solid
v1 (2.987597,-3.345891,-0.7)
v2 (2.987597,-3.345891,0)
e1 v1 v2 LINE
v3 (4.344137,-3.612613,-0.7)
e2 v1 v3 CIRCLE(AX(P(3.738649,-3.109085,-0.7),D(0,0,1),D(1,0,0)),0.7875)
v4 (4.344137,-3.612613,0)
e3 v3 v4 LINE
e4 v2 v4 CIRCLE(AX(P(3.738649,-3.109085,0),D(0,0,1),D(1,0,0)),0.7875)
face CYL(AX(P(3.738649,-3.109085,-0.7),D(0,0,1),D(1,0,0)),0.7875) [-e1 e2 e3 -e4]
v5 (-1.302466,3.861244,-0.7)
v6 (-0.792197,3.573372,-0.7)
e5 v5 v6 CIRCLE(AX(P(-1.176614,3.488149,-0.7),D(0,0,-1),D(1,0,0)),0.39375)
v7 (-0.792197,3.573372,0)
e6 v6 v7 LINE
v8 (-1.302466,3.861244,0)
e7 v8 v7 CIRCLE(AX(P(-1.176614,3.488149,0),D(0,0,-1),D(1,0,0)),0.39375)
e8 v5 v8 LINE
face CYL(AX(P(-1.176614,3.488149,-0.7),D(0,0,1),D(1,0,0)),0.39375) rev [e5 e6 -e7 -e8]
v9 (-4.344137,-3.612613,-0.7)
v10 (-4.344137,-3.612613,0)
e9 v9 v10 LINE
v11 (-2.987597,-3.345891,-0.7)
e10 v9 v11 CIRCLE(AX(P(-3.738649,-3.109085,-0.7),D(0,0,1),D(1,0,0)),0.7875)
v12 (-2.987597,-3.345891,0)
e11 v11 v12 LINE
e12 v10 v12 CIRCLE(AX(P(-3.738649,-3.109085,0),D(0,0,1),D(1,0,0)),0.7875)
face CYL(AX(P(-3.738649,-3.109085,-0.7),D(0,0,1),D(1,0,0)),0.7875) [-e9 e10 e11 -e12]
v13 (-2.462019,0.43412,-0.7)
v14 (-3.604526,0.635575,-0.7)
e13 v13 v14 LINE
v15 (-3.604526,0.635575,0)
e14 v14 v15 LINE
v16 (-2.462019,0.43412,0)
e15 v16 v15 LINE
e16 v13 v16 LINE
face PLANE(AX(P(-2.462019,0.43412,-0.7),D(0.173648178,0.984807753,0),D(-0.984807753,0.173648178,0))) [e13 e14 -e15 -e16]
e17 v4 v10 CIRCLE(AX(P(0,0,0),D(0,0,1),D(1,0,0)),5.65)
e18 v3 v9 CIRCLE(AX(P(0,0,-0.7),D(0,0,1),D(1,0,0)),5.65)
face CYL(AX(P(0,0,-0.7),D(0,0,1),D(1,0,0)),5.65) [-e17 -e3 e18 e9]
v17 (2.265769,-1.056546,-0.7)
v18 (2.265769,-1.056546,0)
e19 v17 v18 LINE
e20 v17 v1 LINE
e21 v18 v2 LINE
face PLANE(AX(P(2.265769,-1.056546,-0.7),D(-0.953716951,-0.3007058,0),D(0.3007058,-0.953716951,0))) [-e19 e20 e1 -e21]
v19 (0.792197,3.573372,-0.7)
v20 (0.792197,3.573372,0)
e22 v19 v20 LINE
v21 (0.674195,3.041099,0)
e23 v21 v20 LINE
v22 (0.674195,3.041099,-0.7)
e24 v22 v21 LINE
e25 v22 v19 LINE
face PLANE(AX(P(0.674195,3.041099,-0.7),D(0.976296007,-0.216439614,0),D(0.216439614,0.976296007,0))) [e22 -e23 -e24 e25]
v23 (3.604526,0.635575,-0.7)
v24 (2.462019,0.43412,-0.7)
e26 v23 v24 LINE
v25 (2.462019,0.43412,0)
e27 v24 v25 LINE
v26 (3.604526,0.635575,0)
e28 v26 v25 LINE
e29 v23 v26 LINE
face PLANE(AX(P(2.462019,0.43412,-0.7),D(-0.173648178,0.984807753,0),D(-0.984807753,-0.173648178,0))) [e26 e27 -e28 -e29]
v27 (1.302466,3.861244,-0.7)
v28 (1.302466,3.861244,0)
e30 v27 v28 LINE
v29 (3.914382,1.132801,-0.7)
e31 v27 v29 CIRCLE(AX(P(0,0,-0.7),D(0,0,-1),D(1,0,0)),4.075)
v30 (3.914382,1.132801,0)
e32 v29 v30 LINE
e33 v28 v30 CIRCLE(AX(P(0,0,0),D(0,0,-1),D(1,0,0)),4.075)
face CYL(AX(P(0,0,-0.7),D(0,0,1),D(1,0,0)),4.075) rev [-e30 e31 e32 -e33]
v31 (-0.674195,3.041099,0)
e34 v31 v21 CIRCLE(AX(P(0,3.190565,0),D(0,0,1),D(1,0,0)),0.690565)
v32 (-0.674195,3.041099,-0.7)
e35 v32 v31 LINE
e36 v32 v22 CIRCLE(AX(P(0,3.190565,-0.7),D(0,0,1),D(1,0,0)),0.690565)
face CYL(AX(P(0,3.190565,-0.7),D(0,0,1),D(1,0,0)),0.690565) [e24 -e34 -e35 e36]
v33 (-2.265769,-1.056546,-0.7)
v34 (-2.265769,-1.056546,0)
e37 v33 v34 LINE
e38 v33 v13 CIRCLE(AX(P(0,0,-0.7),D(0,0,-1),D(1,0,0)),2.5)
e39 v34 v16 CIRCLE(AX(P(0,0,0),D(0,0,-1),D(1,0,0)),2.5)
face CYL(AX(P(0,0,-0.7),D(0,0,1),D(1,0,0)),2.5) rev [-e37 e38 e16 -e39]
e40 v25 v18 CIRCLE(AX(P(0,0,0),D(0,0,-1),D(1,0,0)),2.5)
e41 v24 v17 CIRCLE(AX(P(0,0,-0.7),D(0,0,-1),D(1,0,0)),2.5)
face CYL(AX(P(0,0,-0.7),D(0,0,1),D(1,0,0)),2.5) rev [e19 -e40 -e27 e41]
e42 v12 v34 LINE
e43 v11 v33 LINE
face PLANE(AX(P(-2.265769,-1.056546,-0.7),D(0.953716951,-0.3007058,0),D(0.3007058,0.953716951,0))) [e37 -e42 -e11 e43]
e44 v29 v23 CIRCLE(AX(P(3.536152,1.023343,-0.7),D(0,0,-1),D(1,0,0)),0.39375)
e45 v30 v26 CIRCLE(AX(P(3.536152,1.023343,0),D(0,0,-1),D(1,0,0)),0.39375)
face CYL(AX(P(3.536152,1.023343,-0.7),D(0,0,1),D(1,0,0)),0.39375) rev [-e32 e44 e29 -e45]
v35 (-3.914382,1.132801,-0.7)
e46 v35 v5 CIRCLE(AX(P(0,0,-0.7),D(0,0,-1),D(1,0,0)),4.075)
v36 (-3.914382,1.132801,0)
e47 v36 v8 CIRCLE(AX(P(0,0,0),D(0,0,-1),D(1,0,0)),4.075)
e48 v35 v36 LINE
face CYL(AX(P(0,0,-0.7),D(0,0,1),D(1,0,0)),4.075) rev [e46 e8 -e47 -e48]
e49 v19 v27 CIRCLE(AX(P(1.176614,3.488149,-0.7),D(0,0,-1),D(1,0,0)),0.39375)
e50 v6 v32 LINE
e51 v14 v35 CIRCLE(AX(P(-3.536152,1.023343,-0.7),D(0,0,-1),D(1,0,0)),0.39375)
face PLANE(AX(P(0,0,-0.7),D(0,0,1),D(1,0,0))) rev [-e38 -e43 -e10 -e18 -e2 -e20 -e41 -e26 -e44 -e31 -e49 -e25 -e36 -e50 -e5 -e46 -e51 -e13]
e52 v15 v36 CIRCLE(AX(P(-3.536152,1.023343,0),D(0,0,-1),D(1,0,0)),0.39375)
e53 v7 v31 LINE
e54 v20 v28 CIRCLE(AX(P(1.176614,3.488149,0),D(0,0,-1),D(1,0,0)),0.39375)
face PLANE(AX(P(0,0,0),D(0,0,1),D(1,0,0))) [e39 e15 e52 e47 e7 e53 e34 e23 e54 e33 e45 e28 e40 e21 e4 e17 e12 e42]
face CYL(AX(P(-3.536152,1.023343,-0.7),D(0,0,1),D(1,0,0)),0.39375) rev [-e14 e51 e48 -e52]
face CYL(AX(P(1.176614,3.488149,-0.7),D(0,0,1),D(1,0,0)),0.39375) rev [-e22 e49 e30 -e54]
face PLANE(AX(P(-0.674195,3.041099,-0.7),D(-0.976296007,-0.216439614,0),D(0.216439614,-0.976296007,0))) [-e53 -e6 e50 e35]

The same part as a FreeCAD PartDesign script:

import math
import FreeCAD as App
import Part
import Sketcher
from FreeCAD import Vector
Q = App.Units.Quantity

doc = App.newDocument("Part")
body = doc.addObject("PartDesign::Body", "Body")

# Sketch on XY plane
sketch1 = body.newObject("Sketcher::SketchObject", "Sketch")
sketch1.AttachmentSupport = (doc.getObject("XY_Plane"), [""])
sketch1.MapMode = "FlatFace"
sketch1.addGeometry(Part.LineSegment(Vector(3.604526, 0.635575, 0), Vector(2.462019, 0.43412, 0)), False)
sketch1.addGeometry(Part.ArcOfCircle(Part.Circle(Vector(0, 0, 0), Vector(0, 0, 1), 2.5), math.radians(-25), math.radians(10)), False)
sketch1.addGeometry(Part.LineSegment(Vector(2.265769, -1.056546, 0), Vector(2.987597, -3.345891, 0)), False)
sketch1.addGeometry(Part.ArcOfCircle(Part.Circle(Vector(3.738649, -3.109085, 0), Vector(0, 0, 1), 0.7875), math.radians(-162.5), math.radians(-39.747128)), False)
sketch1.addGeometry(Part.ArcOfCircle(Part.Circle(Vector(0, 0, 0), Vector(0, 0, 1), 5.65), math.radians(-39.747128), math.radians(219.747128)), False)
sketch1.addGeometry(Part.ArcOfCircle(Part.Circle(Vector(-3.738649, -3.109085, 0), Vector(0, 0, 1), 0.7875), math.radians(-140.252872), math.radians(-17.5)), False)
sketch1.addGeometry(Part.LineSegment(Vector(-2.987597, -3.345891, 0), Vector(-2.265769, -1.056546, 0)), False)
sketch1.addGeometry(Part.ArcOfCircle(Part.Circle(Vector(0, 0, 0), Vector(0, 0, 1), 2.5), math.radians(170), math.radians(205)), False)
sketch1.addGeometry(Part.LineSegment(Vector(-2.462019, 0.43412, 0), Vector(-3.604526, 0.635575, 0)), False)
sketch1.addGeometry(Part.ArcOfCircle(Part.Circle(Vector(-3.536152, 1.023343, 0), Vector(0, 0, 1), 0.39375), math.radians(163.859843), math.radians(260)), False)
sketch1.addGeometry(Part.ArcOfCircle(Part.Circle(Vector(0, 0, 0), Vector(0, 0, 1), 4.075), math.radians(108.640157), math.radians(163.859843)), False)
sketch1.addGeometry(Part.ArcOfCircle(Part.Circle(Vector(-1.176614, 3.488149, 0), Vector(0, 0, 1), 0.39375), math.radians(12.5), math.radians(108.640157)), False)
sketch1.addGeometry(Part.LineSegment(Vector(-0.792197, 3.573372, 0), Vector(-0.674195, 3.041099, 0)), False)
sketch1.addGeometry(Part.ArcOfCircle(Part.Circle(Vector(0, 3.190565, 0), Vector(0, 0, 1), 0.690565), math.radians(-167.5), math.radians(-12.5)), False)
sketch1.addGeometry(Part.LineSegment(Vector(0.674195, 3.041099, 0), Vector(0.792197, 3.573372, 0)), False)
sketch1.addGeometry(Part.ArcOfCircle(Part.Circle(Vector(1.176614, 3.488149, 0), Vector(0, 0, 1), 0.39375), math.radians(71.359843), math.radians(167.5)), False)
sketch1.addGeometry(Part.ArcOfCircle(Part.Circle(Vector(0, 0, 0), Vector(0, 0, 1), 4.075), math.radians(16.140157), math.radians(71.359843)), False)
sketch1.addGeometry(Part.ArcOfCircle(Part.Circle(Vector(3.536152, 1.023343, 0), Vector(0, 0, 1), 0.39375), math.radians(-80), math.radians(16.140157)), False)
sketch1.addConstraint(Sketcher.Constraint("Coincident", 0, 2, 1, 2))
sketch1.addConstraint(Sketcher.Constraint("Coincident", 1, 1, 2, 1))
sketch1.addConstraint(Sketcher.Constraint("Tangent", 2, 2, 3, 1))
sketch1.addConstraint(Sketcher.Constraint("Tangent", 3, 2, 4, 1))
sketch1.addConstraint(Sketcher.Constraint("Tangent", 4, 2, 5, 1))
sketch1.addConstraint(Sketcher.Constraint("Tangent", 5, 2, 6, 1))
sketch1.addConstraint(Sketcher.Constraint("Coincident", 6, 2, 7, 2))
sketch1.addConstraint(Sketcher.Constraint("Coincident", 7, 1, 8, 1))
sketch1.addConstraint(Sketcher.Constraint("Tangent", 8, 2, 9, 2))
sketch1.addConstraint(Sketcher.Constraint("Tangent", 9, 1, 10, 2))
sketch1.addConstraint(Sketcher.Constraint("Tangent", 10, 1, 11, 2))
sketch1.addConstraint(Sketcher.Constraint("Tangent", 11, 1, 12, 1))
sketch1.addConstraint(Sketcher.Constraint("Tangent", 12, 2, 13, 1))
sketch1.addConstraint(Sketcher.Constraint("Tangent", 13, 2, 14, 1))
sketch1.addConstraint(Sketcher.Constraint("Tangent", 14, 2, 15, 2))
sketch1.addConstraint(Sketcher.Constraint("Tangent", 15, 1, 16, 2))
sketch1.addConstraint(Sketcher.Constraint("Tangent", 16, 1, 17, 2))
sketch1.addConstraint(Sketcher.Constraint("Tangent", 17, 1, 0, 1))
sketch1.addConstraint(Sketcher.Constraint("Coincident", 1, 3, -1, 1))
sketch1.addConstraint(Sketcher.Constraint("Coincident", 4, 3, -1, 1))
sketch1.addConstraint(Sketcher.Constraint("Coincident", 7, 3, -1, 1))
sketch1.addConstraint(Sketcher.Constraint("Coincident", 10, 3, -1, 1))
sketch1.addConstraint(Sketcher.Constraint("Coincident", 16, 3, -1, 1))
sketch1.addConstraint(Sketcher.Constraint("Equal", 3, 5))
sketch1.addConstraint(Sketcher.Constraint("Equal", 1, 7))
sketch1.addConstraint(Sketcher.Constraint("Equal", 9, 11))
sketch1.addConstraint(Sketcher.Constraint("Equal", 11, 15))
sketch1.addConstraint(Sketcher.Constraint("Equal", 10, 16))
sketch1.addConstraint(Sketcher.Constraint("Equal", 15, 17))
sketch1.addConstraint(Sketcher.Constraint("Symmetric", 2, 2, 5, 2, -2))
sketch1.addConstraint(Sketcher.Constraint("Symmetric", 12, 2, 13, 2, -2))
sketch1.addConstraint(Sketcher.Constraint("Symmetric", 8, 2, 17, 1, -2))
sketch1.addConstraint(Sketcher.Constraint("Radius", 1, 2.5))
sketch1.addConstraint(Sketcher.Constraint("Angle", 0, Q("-170 deg")))
sketch1.addConstraint(Sketcher.Constraint("Radius", 4, 5.65))
sketch1.addConstraint(Sketcher.Constraint("Angle", 2, Q("-72.5 deg")))
sketch1.addConstraint(Sketcher.Constraint("Angle", 12, Q("-77.5 deg")))
sketch1.addConstraint(Sketcher.Constraint("Radius", 10, 4.075))
sketch1.addConstraint(Sketcher.Constraint("Radius", 3, 0.7875))
sketch1.addConstraint(Sketcher.Constraint("Radius", 9, 0.39375))
sketch1.addConstraint(Sketcher.Constraint("Radius", 13, 0.690565))
sketch1.addConstraint(Sketcher.Constraint("DistanceY", -1, 1, 9, 1, 1.132801))
sketch1.addConstraint(Sketcher.Constraint("DistanceY", -1, 1, 12, 2, 3.041099))
sketch1.addConstraint(Sketcher.Constraint("DistanceX", 5, 3, 3, 3, 7.477298))
pad1 = body.newObject("PartDesign::Pad", "Pad")
pad1.Profile = sketch1
pad1.Length = 0.7
pad1.Reversed = True

doc.recompute()
